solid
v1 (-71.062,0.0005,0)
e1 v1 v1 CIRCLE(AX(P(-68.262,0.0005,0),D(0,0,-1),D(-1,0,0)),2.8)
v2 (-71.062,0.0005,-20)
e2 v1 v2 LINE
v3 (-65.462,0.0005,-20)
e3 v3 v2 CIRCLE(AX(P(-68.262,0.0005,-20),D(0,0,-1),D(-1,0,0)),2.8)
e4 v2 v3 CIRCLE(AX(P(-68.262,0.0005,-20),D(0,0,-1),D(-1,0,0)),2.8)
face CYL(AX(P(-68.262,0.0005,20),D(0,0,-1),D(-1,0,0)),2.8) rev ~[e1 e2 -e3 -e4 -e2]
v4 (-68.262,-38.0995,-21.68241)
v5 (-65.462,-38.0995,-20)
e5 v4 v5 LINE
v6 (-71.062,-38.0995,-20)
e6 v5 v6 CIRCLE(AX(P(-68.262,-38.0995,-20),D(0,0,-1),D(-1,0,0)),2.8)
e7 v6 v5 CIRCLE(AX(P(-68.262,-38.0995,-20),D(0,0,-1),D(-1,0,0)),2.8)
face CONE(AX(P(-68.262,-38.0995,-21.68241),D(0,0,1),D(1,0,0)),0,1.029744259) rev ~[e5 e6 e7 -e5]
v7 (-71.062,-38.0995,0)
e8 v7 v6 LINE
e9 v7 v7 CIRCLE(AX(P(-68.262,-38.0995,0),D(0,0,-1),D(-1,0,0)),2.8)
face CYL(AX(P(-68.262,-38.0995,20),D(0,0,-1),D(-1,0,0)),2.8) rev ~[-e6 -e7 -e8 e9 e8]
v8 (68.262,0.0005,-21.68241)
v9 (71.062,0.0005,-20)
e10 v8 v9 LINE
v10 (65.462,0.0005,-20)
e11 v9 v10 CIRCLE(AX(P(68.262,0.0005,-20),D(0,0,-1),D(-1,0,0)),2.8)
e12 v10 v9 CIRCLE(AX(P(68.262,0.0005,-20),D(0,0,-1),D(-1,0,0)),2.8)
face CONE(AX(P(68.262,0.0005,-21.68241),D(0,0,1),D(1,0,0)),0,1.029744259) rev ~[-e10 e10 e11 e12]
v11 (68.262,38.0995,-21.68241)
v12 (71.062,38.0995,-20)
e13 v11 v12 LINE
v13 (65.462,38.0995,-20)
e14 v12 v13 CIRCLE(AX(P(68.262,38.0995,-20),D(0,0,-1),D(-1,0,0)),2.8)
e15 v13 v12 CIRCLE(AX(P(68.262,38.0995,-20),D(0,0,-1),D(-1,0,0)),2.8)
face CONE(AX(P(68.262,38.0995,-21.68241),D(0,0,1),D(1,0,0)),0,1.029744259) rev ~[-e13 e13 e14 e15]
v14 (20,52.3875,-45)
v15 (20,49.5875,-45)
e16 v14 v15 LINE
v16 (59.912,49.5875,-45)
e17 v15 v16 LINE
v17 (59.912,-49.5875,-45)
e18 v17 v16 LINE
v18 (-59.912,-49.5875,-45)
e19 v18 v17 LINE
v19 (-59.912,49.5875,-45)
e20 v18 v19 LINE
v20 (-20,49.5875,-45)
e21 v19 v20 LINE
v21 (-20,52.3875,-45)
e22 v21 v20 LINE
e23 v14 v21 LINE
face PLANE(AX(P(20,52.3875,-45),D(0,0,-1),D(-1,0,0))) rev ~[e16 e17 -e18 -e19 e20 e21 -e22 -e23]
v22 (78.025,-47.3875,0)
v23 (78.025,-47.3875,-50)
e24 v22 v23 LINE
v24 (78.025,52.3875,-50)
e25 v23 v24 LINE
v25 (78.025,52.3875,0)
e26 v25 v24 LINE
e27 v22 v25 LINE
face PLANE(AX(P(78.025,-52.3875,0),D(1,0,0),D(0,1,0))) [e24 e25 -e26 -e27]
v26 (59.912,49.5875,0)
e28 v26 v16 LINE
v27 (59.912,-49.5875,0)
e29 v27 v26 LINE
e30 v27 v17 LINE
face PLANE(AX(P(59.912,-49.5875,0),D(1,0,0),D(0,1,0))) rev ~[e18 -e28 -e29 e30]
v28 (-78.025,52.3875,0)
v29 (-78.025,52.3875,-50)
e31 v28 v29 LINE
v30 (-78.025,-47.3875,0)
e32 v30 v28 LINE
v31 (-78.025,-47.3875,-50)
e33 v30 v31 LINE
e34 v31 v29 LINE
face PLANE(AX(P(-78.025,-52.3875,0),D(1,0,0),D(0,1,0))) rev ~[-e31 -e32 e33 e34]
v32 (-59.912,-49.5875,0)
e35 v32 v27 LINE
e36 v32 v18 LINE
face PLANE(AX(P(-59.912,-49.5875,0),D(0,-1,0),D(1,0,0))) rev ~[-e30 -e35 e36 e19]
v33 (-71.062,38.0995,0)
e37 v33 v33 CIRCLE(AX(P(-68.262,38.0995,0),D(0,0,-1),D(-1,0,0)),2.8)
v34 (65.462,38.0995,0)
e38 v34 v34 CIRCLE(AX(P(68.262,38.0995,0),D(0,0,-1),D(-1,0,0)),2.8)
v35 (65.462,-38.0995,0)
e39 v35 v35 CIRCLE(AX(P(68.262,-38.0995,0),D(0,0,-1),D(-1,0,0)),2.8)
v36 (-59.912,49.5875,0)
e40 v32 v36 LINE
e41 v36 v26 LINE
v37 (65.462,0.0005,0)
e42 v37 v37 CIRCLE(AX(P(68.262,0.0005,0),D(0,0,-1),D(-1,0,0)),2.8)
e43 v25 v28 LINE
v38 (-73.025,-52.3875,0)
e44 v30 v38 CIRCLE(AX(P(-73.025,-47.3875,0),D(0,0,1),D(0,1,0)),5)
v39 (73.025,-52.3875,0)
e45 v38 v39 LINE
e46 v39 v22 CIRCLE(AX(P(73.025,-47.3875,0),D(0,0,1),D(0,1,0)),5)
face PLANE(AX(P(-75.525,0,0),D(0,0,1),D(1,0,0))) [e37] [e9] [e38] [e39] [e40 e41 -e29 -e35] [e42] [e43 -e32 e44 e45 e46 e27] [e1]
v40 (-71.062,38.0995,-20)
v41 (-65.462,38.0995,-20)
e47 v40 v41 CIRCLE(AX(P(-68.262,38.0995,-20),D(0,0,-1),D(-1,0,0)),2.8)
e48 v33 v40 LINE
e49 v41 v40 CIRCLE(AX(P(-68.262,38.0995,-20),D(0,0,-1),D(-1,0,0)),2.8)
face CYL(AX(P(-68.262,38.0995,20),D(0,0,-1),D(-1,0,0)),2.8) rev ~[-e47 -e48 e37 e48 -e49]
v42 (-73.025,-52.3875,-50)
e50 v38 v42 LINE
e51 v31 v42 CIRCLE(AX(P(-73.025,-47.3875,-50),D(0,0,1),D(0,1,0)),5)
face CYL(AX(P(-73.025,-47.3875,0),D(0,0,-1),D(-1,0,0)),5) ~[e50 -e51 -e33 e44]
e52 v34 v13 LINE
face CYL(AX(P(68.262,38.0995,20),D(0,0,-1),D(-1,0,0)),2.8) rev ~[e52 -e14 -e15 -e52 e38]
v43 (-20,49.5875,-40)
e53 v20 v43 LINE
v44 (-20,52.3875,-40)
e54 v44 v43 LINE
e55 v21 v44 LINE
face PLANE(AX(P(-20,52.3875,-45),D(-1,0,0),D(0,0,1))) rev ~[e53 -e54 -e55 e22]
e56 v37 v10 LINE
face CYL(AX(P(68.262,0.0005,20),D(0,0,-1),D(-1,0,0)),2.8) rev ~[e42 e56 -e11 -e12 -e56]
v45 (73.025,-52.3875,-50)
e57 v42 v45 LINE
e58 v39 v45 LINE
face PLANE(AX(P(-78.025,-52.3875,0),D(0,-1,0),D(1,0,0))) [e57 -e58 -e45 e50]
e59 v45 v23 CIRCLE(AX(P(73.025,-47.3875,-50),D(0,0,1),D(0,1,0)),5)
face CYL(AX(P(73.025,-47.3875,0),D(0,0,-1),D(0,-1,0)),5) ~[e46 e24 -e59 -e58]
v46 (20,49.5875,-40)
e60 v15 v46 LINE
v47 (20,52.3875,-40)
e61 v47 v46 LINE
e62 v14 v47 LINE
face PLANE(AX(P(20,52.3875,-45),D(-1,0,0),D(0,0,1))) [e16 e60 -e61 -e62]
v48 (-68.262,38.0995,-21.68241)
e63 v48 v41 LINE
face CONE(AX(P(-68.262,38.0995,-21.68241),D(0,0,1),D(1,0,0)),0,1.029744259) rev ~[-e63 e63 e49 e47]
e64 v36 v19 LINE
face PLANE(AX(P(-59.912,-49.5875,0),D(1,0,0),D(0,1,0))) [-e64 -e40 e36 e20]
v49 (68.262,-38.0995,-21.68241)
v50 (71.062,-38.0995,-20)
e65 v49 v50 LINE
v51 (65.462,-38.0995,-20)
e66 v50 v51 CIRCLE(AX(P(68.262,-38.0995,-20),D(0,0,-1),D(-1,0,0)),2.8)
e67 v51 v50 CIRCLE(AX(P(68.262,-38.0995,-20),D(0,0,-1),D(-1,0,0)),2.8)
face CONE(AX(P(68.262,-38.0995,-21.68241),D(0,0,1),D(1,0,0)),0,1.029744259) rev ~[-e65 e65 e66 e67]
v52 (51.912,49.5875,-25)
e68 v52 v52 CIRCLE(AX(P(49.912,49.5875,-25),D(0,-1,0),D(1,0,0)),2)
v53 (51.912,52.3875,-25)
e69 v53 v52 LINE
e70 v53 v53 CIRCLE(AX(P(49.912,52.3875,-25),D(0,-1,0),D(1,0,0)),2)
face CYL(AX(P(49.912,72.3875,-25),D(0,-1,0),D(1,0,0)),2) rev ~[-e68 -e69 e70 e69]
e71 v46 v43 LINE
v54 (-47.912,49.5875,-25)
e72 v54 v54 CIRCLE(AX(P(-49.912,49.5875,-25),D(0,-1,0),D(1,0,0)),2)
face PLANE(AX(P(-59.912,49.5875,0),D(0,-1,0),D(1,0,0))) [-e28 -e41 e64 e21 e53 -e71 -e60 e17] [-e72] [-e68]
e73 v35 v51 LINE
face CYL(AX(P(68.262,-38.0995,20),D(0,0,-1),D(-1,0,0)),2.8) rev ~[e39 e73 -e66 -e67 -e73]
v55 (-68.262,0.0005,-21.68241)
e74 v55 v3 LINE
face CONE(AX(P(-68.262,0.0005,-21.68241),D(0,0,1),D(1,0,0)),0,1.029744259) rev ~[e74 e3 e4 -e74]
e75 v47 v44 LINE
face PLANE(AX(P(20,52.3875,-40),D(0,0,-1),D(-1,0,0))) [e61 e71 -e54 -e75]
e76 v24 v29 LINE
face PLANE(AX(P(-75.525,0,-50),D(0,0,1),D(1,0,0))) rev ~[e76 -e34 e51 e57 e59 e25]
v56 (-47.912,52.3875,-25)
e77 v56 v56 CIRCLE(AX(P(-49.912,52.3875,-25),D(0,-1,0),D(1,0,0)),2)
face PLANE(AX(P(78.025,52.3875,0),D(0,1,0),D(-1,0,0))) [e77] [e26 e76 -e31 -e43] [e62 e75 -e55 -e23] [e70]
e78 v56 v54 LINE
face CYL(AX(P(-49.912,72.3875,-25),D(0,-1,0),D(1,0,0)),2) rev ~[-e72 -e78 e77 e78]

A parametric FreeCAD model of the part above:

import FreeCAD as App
import Part
import Sketcher
Q = App.Units.Quantity


def edges_at(feature, points):
    """Names of the edges that pass closest to the given points."""
    edges = feature.Shape.Edges
    near = lambda p: min(range(len(edges)), key=lambda i: edges[i].distToShape(Part.Vertex(*p))[0])
    return sorted({f"Edge{near(p) + 1}" for p in points})

doc = App.newDocument("Part")
body = doc.addObject("PartDesign::Body", "Body")

# Sketch on XY plane
sketch1 = doc.addObject("Sketcher::SketchObject", "Sketch")
body.addObject(sketch1)
sketch1.AttachmentSupport = (doc.XY_Plane, [""])
sketch1.MapMode = "FlatFace"
sketch1.addGeometry(Part.LineSegment(App.Vector(-78, 52, 0), App.Vector(-78, -52, 0)), False)
sketch1.addGeometry(Part.LineSegment(App.Vector(-78, -52, 0), App.Vector(78, -52, 0)), False)
sketch1.addGeometry(Part.LineSegment(App.Vector(78, -52, 0), App.Vector(78, 52, 0)), False)
sketch1.addGeometry(Part.LineSegment(App.Vector(78, 52, 0), App.Vector(-78, 52, 0)), False)
sketch1.addConstraint(Sketcher.Constraint("Coincident", 0, 2, 1, 1))
sketch1.addConstraint(Sketcher.Constraint("Coincident", 1, 2, 2, 1))
sketch1.addConstraint(Sketcher.Constraint("Coincident", 2, 2, 3, 1))
sketch1.addConstraint(Sketcher.Constraint("Coincident", 3, 2, 0, 1))
sketch1.addConstraint(Sketcher.Constraint("Vertical", 0))
sketch1.addConstraint(Sketcher.Constraint("Horizontal", 1))
sketch1.addConstraint(Sketcher.Constraint("Vertical", 2))
sketch1.addConstraint(Sketcher.Constraint("Horizontal", 3))
sketch1.addConstraint(Sketcher.Constraint("Symmetric", 0, 2, 2, 2, -1, 1))
sketch1.addConstraint(Sketcher.Constraint("DistanceX", 1, 1, 1, 2, Q("156.05 mm")))
sketch1.addConstraint(Sketcher.Constraint("DistanceY", 0, 2, 0, 1, Q("104.775 mm")))
pad1 = doc.addObject("PartDesign::Pad", "Pad")
body.addObject(pad1)
pad1.Profile = sketch1
pad1.Length = 50
pad1.Reversed = True

# Sketch on XY plane
sketch2 = doc.addObject("Sketcher::SketchObject", "Sketch001")
body.addObject(sketch2)
sketch2.AttachmentSupport = (doc.XY_Plane, [""])
sketch2.MapMode = "FlatFace"
sketch2.addGeometry(Part.LineSegment(App.Vector(-60, 50, 0), App.Vector(-60, -50, 0)), False)
sketch2.addGeometry(Part.LineSegment(App.Vector(-60, -50, 0), App.Vector(60, -50, 0)), False)
sketch2.addGeometry(Part.LineSegment(App.Vector(60, -50, 0), App.Vector(60, 50, 0)), False)
sketch2.addGeometry(Part.LineSegment(App.Vector(60, 50, 0), App.Vector(-60, 50, 0)), False)
sketch2.addConstraint(Sketcher.Constraint("Coincident", 0, 2, 1, 1))
sketch2.addConstraint(Sketcher.Constraint("Coincident", 1, 2, 2, 1))
sketch2.addConstraint(Sketcher.Constraint("Coincident", 2, 2, 3, 1))
sketch2.addConstraint(Sketcher.Constraint("Coincident", 3, 2, 0, 1))
sketch2.addConstraint(Sketcher.Constraint("Vertical", 0))
sketch2.addConstraint(Sketcher.Constraint("Horizontal", 1))
sketch2.addConstraint(Sketcher.Constraint("Vertical", 2))
sketch2.addConstraint(Sketcher.Constraint("Horizontal", 3))
sketch2.addConstraint(Sketcher.Constraint("Symmetric", 0, 2, 2, 2, -1, 1))
sketch2.addConstraint(Sketcher.Constraint("DistanceX", 1, 1, 1, 2, Q("119.824 mm")))
sketch2.addConstraint(Sketcher.Constraint("DistanceY", 0, 2, 0, 1, Q("99.175 mm")))
pocket1 = doc.addObject("PartDesign::Pocket", "Pocket")
body.addObject(pocket1)
pocket1.Profile = sketch2
pocket1.Length = 45

# Sketch on XY plane
sketch3 = doc.addObject("Sketcher::SketchObject", "Sketch002")
body.addObject(sketch3)
sketch3.AttachmentSupport = (doc.XY_Plane, [""])
sketch3.MapMode = "FlatFace"
sketch3.addGeometry(Part.Circle(App.Vector(-68.3, 38.1, 0), App.Vector(0, 0, 1), 2.8), False)
sketch3.addGeometry(Part.Circle(App.Vector(-68.3, 0, 0), App.Vector(0, 0, 1), 2.8), False)
sketch3.addGeometry(Part.Circle(App.Vector(-68.3, -38.1, 0), App.Vector(0, 0, 1), 2.8), False)
sketch3.addGeometry(Part.Circle(App.Vector(68.3, -38.1, 0), App.Vector(0, 0, 1), 2.8), False)
sketch3.addGeometry(Part.Circle(App.Vector(68.3, 38.1, 0), App.Vector(0, 0, 1), 2.8), False)
sketch3.addGeometry(Part.Circle(App.Vector(68.3, 0, 0), App.Vector(0, 0, 1), 2.8), False)
sketch3.addConstraint(Sketcher.Constraint("Equal", 0, 1))
sketch3.addConstraint(Sketcher.Constraint("Equal", 1, 2))
sketch3.addConstraint(Sketcher.Constraint("Equal", 2, 3))
sketch3.addConstraint(Sketcher.Constraint("Equal", 3, 4))
sketch3.addConstraint(Sketcher.Constraint("Equal", 4, 5))
sketch3.addConstraint(Sketcher.Constraint("Symmetric", 0, 3, 3, 3, -1, 1))
sketch3.addConstraint(Sketcher.Constraint("Symmetric", 2, 3, 4, 3, -1, 1))
sketch3.addConstraint(Sketcher.Constraint("Symmetric", 2, 3, 3, 3, -2))
sketch3.addConstraint(Sketcher.Constraint("Symmetric", 1, 3, 5, 3, -2))
sketch3.addConstraint(Sketcher.Constraint("Vertical", 0, 3, 1, 3))
sketch3.addConstraint(Sketcher.Constraint("Diameter", 0, Q("5.6 mm")))
sketch3.addConstraint(Sketcher.Constraint("DistanceY", 2, 3, 1, 3, Q("38.1 mm")))
sketch3.addConstraint(Sketcher.Constraint("DistanceX", 0, 3, -1, 1, Q("68.262 mm")))
sketch3.addConstraint(Sketcher.Constraint("DistanceY", 1, 3, 0, 3, Q("38.099 mm")))
doc.recompute()
hole = doc.addObject("PartDesign::Hole", "Hole")
body.addObject(hole)
hole.Profile = sketch3
hole.ThreadType = "None"
hole.Diameter = 5.6
hole.DepthType = "Dimension"
hole.Depth = 20
hole.DrillPoint = "Angled"
hole.DrillPointAngle = 118

# Sketch on XZ plane
sketch4 = doc.addObject("Sketcher::SketchObject", "Sketch003")
body.addObject(sketch4)
sketch4.AttachmentSupport = (doc.XZ_Plane, [""])
sketch4.MapMode = "FlatFace"
sketch4.AttachmentOffset = App.Placement(App.Vector(0, 0, -52.3875), App.Rotation())
sketch4.addGeometry(Part.LineSegment(App.Vector(20, -40, 0), App.Vector(20, -45, 0)), False)
sketch4.addGeometry(Part.LineSegment(App.Vector(20, -45, 0), App.Vector(-20, -45, 0)), False)
sketch4.addGeometry(Part.LineSegment(App.Vector(-20, -45, 0), App.Vector(-20, -40, 0)), False)
sketch4.addGeometry(Part.LineSegment(App.Vector(-20, -40, 0), App.Vector(20, -40, 0)), False)
sketch4.addConstraint(Sketcher.Constraint("Coincident", 0, 2, 1, 1))
sketch4.addConstraint(Sketcher.Constraint("Coincident", 1, 2, 2, 1))
sketch4.addConstraint(Sketcher.Constraint("Coincident", 2, 2, 3, 1))
sketch4.addConstraint(Sketcher.Constraint("Coincident", 3, 2, 0, 1))
sketch4.addConstraint(Sketcher.Constraint("Vertical", 0))
sketch4.addConstraint(Sketcher.Constraint("Horizontal", 1))
sketch4.addConstraint(Sketcher.Constraint("Vertical", 2))
sketch4.addConstraint(Sketcher.Constraint("Horizontal", 3))
sketch4.addConstraint(Sketcher.Constraint("DistanceX", 1, 2, 1, 1, Q("40 mm")))
sketch4.addConstraint(Sketcher.Constraint("DistanceY", 0, 2, 0, 1, Q("5 mm")))
sketch4.addConstraint(Sketcher.Constraint("DistanceX", -1, 1, 0, 2, Q("20 mm")))
sketch4.addConstraint(Sketcher.Constraint("DistanceY", 0, 2, -1, 1, Q("45 mm")))
pocket2 = doc.addObject("PartDesign::Pocket", "Pocket001")
body.addObject(pocket2)
pocket2.Profile = sketch4
pocket2.Length = 2.8
pocket2.Reversed = True

# Sketch on XZ plane
sketch5 = doc.addObject("Sketcher::SketchObject", "Sketch004")
body.addObject(sketch5)
sketch5.AttachmentSupport = (doc.XZ_Plane, [""])
sketch5.MapMode = "FlatFace"
sketch5.AttachmentOffset = App.Placement(App.Vector(0, 0, -52.3875), App.Rotation())
sketch5.addGeometry(Part.Circle(App.Vector(49.9, -25, 0), App.Vector(0, 0, 1), 2), False)
sketch5.addGeometry(Part.Circle(App.Vector(-49.9, -25, 0), App.Vector(0, 0, 1), 2), False)
sketch5.addConstraint(Sketcher.Constraint("Equal", 0, 1))
sketch5.addConstraint(Sketcher.Constraint("Symmetric", 0, 3, 1, 3, -2))
sketch5.addConstraint(Sketcher.Constraint("Diameter", 0, Q("4 mm")))
sketch5.addConstraint(Sketcher.Constraint("DistanceY", 0, 3, -1, 1, Q("25 mm")))
sketch5.addConstraint(Sketcher.Constraint("DistanceX", -1, 1, 0, 3, Q("49.912 mm")))
doc.recompute()
hole2 = doc.addObject("PartDesign::Hole", "Hole001")
body.addObject(hole2)
hole2.Profile = sketch5
hole2.ThreadType = "None"
hole2.Diameter = 4
hole2.DepthType = "Dimension"
hole2.Depth = 20
hole2.DrillPoint = "Angled"
hole2.DrillPointAngle = 118
hole2.Reversed = True
doc.recompute()

fillet = doc.addObject("PartDesign::Fillet", "Fillet")
body.addObject(fillet)
fillet.Base = (hole2, edges_at(hole2, [(-78.025, -52.388, -25), (78.025, -52.388, -25)]))
fillet.Radius = 5

doc.recompute()
